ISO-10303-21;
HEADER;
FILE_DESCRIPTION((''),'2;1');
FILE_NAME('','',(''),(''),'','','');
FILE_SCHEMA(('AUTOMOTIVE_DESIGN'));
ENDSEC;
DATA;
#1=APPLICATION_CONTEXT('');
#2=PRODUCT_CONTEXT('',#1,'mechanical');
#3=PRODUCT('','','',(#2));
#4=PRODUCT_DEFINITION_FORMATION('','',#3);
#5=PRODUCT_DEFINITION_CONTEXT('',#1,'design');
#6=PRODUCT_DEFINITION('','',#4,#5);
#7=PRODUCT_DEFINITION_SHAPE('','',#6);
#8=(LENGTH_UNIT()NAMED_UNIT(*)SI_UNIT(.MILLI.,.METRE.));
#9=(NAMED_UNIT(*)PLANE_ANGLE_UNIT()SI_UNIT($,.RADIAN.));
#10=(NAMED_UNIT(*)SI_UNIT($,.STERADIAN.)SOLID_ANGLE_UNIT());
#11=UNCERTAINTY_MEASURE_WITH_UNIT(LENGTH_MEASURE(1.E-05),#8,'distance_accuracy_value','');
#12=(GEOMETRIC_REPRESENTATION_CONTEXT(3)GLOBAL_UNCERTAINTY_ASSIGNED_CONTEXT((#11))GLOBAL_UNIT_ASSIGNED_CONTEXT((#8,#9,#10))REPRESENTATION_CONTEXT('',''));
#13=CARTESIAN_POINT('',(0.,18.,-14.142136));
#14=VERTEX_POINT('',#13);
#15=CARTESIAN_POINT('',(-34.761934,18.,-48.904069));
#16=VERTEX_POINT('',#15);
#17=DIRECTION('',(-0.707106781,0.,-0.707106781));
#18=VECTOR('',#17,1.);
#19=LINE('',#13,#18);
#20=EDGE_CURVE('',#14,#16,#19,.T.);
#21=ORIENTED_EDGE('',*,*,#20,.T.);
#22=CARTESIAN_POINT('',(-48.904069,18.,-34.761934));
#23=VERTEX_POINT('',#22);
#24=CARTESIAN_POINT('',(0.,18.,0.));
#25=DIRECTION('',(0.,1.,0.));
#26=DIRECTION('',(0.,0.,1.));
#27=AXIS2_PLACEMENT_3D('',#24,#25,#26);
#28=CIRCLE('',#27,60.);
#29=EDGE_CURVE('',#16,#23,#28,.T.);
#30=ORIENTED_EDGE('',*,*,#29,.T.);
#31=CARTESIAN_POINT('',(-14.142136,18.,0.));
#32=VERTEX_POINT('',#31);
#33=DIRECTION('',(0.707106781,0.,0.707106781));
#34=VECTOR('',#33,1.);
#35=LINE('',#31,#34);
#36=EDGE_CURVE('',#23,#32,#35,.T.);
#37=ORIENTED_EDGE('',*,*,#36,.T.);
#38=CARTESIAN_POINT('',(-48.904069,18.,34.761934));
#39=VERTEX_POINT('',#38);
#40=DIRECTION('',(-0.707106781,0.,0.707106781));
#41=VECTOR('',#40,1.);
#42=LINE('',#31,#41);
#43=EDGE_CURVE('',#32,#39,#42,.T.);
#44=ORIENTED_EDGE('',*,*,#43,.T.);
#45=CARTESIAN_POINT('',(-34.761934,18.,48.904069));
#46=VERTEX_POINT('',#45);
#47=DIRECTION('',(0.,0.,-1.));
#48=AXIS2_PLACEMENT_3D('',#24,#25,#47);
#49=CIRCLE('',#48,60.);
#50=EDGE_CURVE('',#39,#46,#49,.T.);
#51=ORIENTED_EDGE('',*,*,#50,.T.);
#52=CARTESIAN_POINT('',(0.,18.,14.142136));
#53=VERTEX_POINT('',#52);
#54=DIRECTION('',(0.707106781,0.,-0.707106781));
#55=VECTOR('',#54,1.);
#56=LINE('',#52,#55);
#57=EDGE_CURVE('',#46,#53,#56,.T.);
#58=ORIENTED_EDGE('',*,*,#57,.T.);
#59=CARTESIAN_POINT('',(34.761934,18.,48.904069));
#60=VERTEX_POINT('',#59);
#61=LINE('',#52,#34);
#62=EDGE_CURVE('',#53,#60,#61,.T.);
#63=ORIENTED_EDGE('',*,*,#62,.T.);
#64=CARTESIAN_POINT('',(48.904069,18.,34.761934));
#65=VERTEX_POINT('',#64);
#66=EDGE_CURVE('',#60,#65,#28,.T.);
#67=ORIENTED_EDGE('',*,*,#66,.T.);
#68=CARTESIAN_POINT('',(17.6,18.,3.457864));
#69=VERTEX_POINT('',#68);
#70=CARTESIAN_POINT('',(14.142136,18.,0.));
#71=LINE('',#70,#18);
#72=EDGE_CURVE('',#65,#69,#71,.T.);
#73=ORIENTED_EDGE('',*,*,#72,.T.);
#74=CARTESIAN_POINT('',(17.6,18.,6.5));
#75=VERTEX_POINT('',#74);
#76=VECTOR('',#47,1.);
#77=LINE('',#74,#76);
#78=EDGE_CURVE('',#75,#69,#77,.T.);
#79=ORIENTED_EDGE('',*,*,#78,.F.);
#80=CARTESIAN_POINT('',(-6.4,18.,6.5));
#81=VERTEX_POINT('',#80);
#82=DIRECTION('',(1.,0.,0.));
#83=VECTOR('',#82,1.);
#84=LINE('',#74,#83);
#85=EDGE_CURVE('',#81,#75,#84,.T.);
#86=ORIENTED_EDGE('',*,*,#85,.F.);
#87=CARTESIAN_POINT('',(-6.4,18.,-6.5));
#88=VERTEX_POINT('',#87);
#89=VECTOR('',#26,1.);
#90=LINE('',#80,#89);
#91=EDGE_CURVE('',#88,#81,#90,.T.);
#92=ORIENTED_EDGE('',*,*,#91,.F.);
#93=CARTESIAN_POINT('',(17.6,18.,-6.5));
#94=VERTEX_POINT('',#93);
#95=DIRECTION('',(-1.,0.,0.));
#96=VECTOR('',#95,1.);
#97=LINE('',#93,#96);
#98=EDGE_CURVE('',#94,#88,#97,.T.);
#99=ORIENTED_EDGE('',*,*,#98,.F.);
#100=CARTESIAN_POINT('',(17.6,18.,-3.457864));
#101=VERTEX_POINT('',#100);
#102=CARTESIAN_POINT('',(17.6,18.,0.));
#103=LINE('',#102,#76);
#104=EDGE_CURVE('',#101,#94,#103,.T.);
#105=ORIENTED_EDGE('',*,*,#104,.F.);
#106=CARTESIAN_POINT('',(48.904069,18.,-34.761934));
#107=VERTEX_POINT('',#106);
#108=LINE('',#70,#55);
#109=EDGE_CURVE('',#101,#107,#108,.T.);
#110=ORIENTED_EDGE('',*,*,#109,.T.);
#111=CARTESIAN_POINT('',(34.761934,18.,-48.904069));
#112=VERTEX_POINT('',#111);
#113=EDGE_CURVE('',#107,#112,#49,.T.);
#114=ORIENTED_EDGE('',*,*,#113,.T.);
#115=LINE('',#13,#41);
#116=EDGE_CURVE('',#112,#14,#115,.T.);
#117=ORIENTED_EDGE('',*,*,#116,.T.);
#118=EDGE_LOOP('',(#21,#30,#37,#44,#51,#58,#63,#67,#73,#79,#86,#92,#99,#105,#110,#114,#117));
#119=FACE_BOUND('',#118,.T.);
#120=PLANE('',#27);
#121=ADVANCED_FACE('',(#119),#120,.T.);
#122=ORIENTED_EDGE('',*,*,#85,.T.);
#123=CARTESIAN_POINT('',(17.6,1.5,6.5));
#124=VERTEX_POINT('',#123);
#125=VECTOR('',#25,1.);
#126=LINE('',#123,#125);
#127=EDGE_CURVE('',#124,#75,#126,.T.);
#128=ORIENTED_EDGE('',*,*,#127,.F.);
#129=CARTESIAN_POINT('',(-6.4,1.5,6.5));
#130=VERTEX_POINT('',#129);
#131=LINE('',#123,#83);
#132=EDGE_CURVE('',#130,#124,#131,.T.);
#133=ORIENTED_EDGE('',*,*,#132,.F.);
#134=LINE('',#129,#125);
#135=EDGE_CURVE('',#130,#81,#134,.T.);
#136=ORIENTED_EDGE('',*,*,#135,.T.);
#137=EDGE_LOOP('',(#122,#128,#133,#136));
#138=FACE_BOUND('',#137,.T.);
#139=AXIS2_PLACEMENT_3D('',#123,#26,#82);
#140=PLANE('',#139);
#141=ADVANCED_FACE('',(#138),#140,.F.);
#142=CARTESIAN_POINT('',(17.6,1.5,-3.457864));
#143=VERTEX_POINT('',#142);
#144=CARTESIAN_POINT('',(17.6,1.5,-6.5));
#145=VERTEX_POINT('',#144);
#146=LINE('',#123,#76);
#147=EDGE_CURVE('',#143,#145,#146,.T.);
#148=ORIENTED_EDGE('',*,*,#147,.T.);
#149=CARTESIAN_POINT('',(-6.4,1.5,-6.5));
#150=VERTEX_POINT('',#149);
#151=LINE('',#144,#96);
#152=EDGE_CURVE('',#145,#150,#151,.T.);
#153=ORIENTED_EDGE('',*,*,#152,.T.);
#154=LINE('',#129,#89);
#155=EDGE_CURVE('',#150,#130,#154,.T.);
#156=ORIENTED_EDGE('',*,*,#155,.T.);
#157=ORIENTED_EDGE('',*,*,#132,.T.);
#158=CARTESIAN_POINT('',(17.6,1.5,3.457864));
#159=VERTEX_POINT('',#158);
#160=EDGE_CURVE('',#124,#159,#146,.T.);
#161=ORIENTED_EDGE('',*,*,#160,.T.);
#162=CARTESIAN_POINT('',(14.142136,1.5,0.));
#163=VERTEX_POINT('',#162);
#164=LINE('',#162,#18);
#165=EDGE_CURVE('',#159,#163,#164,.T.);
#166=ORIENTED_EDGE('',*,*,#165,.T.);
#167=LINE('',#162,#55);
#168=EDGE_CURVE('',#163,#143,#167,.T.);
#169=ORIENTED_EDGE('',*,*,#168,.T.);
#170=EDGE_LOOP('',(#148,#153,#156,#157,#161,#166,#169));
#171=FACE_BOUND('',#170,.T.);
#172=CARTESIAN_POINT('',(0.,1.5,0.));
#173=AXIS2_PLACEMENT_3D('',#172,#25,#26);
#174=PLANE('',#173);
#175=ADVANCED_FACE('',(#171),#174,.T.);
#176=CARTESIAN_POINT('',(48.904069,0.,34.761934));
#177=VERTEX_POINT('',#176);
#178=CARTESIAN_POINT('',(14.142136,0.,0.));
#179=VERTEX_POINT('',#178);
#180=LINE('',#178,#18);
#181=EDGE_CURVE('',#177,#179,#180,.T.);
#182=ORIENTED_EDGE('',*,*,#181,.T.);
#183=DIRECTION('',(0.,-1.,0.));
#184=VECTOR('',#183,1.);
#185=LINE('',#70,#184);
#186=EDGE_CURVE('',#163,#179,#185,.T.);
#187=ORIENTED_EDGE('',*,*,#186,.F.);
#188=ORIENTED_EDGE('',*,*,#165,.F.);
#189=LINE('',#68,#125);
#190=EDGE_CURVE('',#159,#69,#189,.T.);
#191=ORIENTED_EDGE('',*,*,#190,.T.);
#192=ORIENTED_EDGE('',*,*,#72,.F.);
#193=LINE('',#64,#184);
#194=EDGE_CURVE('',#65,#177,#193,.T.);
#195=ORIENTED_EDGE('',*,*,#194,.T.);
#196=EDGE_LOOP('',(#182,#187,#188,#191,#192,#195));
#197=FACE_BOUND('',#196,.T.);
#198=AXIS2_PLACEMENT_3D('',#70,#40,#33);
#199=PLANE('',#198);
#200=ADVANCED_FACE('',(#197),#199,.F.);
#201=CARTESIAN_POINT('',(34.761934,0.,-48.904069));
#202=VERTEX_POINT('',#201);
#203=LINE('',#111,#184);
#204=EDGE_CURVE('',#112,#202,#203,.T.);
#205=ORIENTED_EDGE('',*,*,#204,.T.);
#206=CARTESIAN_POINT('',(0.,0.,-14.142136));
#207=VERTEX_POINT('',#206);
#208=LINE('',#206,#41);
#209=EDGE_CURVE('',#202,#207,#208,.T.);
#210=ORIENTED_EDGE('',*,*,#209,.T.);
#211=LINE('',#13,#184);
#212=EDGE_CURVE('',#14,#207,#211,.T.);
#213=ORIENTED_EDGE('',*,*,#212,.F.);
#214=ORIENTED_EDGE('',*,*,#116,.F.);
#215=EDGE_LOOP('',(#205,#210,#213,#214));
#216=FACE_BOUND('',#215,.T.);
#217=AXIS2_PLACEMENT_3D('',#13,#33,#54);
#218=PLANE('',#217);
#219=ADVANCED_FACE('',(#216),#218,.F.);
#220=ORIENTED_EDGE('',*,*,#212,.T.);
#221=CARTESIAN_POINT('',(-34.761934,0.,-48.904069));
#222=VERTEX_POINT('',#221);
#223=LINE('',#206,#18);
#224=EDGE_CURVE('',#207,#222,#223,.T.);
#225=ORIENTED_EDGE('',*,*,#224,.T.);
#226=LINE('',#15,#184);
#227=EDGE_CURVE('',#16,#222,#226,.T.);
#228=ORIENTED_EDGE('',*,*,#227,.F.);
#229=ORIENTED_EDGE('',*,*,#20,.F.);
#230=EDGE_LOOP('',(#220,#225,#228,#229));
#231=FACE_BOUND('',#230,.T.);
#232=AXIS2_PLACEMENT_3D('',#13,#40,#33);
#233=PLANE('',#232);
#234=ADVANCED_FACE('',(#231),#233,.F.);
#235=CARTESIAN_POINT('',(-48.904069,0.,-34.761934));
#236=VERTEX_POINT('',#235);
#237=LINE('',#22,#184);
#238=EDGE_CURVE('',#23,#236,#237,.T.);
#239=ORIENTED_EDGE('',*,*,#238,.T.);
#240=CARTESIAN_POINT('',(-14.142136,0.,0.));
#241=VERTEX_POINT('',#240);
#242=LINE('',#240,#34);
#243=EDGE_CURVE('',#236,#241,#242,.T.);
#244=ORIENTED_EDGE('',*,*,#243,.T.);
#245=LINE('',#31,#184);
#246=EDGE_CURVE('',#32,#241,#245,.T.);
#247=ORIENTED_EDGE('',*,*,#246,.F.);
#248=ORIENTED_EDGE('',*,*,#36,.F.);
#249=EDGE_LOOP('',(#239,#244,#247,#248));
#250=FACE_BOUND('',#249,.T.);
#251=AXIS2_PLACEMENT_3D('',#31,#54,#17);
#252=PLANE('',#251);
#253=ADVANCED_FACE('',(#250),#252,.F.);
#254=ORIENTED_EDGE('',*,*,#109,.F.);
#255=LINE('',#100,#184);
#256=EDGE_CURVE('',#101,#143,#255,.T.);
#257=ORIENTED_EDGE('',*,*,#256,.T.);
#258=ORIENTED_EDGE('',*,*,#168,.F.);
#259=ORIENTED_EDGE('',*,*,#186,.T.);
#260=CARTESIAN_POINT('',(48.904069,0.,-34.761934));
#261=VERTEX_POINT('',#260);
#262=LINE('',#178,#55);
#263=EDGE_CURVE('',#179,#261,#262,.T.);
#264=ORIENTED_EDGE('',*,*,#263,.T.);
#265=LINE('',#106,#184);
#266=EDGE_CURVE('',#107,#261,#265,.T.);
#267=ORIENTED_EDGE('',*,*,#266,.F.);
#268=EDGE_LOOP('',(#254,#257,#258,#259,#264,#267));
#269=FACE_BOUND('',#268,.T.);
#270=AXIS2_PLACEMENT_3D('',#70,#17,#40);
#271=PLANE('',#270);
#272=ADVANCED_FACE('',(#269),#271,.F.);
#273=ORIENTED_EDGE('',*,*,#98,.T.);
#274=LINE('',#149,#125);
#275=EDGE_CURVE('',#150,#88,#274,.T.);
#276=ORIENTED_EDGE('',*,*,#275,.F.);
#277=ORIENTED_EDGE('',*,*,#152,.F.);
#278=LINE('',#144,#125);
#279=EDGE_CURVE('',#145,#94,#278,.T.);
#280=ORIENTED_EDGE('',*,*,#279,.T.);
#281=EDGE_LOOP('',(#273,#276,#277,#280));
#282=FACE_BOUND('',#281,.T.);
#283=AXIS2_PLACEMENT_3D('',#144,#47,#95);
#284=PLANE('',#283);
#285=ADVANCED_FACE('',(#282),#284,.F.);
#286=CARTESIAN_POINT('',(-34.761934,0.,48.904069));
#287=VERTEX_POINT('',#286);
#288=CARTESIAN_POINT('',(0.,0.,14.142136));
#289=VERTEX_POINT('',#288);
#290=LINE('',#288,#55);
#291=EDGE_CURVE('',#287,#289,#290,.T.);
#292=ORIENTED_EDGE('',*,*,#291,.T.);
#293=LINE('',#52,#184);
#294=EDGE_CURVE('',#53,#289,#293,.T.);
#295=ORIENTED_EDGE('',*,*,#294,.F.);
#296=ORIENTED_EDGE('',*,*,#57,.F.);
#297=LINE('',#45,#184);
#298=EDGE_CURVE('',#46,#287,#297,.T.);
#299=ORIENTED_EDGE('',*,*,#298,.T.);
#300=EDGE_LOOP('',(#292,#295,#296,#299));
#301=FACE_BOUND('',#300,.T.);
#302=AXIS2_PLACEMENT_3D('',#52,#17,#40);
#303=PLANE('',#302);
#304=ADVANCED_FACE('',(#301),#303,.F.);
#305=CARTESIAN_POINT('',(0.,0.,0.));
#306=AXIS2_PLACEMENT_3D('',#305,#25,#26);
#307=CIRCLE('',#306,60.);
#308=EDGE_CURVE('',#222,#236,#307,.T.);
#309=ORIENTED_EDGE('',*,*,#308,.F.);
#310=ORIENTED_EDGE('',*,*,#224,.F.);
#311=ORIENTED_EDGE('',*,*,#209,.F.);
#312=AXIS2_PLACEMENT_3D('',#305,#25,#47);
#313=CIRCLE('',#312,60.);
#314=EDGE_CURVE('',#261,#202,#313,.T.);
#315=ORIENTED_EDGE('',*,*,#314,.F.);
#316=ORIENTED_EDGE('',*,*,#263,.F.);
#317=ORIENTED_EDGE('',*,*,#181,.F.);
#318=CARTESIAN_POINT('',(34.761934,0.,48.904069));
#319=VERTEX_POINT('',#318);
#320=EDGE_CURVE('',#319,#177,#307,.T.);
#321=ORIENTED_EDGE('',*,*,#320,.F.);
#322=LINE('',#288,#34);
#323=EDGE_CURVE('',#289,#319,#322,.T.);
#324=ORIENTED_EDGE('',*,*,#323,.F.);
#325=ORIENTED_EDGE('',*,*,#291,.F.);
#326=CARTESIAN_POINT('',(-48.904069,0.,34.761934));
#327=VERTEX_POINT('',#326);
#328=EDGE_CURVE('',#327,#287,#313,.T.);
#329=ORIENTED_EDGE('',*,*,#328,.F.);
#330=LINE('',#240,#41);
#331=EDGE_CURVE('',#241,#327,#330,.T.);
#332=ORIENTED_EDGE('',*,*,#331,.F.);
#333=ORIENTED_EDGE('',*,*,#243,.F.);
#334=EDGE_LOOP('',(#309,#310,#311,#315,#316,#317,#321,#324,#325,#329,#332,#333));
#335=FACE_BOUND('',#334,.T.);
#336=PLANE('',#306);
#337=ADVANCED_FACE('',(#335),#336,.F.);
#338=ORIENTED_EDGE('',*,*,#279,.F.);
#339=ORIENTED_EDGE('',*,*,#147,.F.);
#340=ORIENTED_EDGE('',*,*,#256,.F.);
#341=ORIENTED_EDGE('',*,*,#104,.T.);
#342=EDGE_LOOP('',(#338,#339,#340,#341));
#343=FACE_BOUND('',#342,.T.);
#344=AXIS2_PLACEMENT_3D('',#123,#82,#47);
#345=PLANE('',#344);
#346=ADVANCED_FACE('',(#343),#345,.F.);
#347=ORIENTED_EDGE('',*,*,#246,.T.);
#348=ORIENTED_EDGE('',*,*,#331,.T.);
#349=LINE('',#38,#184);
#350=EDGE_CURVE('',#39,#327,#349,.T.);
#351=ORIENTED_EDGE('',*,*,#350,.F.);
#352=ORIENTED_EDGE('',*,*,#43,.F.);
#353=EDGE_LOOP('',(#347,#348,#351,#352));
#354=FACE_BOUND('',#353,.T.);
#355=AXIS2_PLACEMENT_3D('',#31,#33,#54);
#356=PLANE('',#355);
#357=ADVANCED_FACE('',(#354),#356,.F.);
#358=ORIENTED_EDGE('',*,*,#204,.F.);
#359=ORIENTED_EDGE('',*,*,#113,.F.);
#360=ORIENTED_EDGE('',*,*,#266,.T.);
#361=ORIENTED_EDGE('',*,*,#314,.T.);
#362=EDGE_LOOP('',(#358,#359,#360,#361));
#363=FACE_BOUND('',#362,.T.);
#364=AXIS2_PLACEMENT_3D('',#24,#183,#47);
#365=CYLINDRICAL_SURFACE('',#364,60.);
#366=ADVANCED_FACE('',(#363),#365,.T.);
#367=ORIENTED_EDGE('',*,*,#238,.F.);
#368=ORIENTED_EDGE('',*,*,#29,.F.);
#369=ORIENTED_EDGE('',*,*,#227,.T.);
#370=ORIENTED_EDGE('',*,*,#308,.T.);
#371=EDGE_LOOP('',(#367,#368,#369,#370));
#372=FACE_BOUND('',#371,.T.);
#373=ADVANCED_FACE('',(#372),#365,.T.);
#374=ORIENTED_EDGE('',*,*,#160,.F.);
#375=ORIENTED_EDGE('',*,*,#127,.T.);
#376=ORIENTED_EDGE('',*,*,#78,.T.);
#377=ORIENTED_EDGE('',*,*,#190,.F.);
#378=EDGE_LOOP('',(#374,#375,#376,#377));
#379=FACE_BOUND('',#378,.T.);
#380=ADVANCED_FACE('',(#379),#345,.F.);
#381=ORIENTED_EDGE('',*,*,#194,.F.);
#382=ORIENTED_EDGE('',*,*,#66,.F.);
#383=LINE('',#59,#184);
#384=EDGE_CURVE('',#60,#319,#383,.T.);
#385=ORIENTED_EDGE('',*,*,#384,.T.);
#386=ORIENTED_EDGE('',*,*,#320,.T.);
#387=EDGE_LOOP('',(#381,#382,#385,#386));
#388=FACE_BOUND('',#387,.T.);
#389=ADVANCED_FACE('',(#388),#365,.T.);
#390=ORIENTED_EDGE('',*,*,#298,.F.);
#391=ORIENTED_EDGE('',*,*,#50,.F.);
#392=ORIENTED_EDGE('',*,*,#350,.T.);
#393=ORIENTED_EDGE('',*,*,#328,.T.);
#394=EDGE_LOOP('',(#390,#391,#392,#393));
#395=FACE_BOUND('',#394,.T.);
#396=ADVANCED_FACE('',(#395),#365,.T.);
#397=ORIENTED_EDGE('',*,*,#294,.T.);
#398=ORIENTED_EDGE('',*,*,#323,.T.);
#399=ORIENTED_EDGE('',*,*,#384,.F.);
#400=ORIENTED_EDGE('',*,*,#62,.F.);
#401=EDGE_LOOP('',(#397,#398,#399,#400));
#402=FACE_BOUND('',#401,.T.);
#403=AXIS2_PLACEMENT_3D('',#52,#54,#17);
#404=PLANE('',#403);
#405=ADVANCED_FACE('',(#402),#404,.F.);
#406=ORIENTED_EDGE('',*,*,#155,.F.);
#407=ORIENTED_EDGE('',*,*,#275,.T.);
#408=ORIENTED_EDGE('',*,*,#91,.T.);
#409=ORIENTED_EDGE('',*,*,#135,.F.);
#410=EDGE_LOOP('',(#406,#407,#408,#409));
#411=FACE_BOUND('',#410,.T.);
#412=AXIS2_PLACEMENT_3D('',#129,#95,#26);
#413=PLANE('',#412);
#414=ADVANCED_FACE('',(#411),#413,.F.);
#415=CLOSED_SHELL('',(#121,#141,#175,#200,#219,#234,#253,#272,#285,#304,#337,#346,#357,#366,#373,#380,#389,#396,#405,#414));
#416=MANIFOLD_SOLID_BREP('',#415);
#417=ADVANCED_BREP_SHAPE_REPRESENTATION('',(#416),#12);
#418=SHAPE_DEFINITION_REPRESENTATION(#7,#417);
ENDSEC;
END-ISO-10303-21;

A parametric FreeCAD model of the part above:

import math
import FreeCAD as App
import Part
import Sketcher

V = App.Vector
Q = App.Units.Quantity

doc = App.newDocument("Part")
params = doc.addObject("Spreadsheet::Sheet", "Params")
for row, (alias, value) in enumerate([
    ("sketch1_radius", "60 mm"),
    ("pad1_length", "18 mm"),
    ("sketch2_width", "24 mm"),
    ("sketch2_height", "13 mm"),
    ("pocket1_length", "16.5 mm"),
], start=1):
    params.set(f"A{row}", alias)
    params.set(f"B{row}", "=" + value)
    params.setAlias(f"B{row}", alias)

body = doc.addObject("PartDesign::Body", "Body")

# Sketch on XZ plane
sketch1 = body.newObject("Sketcher::SketchObject", "Sketch")
sketch1.AttachmentSupport = (doc.getObject("XZ_Plane"), [""])
sketch1.MapMode = "FlatFace"
sketch1.addGeometry([
    Part.LineSegment(V(14, 0, 0), V(49, -35, 0)),  # 0
    Part.ArcOfCircle(Part.Circle(V(0, 0, 0), V(0, 0, 1), 60), math.radians(-54.59), math.radians(-35.41)),  # 1
    Part.LineSegment(V(35, -49, 0), V(0, -14, 0)),  # 2
    Part.LineSegment(V(0, -14, 0), V(-35, -49, 0)),  # 3
    Part.ArcOfCircle(Part.Circle(V(0, 0, 0), V(0, 0, 1), 60), math.radians(-144.59), math.radians(-125.41)),  # 4
    Part.LineSegment(V(-49, -35, 0), V(-14, 0, 0)),  # 5
    Part.LineSegment(V(-14, 0, 0), V(-49, 35, 0)),  # 6
    Part.ArcOfCircle(Part.Circle(V(0, 0, 0), V(0, 0, 1), 60), math.radians(125.41), math.radians(144.59)),  # 7
    Part.LineSegment(V(-35, 49, 0), V(0, 14, 0)),  # 8
    Part.LineSegment(V(0, 14, 0), V(35, 49, 0)),  # 9
    Part.ArcOfCircle(Part.Circle(V(0, 0, 0), V(0, 0, 1), 60), math.radians(35.41), math.radians(54.59)),  # 10
    Part.LineSegment(V(49, 35, 0), V(14, 0, 0)),  # 11
], False)
sketch1.addConstraint([
    Sketcher.Constraint("Coincident", 0, 2, 1, 2),
    Sketcher.Constraint("Coincident", 1, 1, 2, 1),
    Sketcher.Constraint("Coincident", 2, 2, 3, 1),
    Sketcher.Constraint("Coincident", 3, 2, 4, 2),
    Sketcher.Constraint("Coincident", 4, 1, 5, 1),
    Sketcher.Constraint("Coincident", 5, 2, 6, 1),
    Sketcher.Constraint("Coincident", 6, 2, 7, 2),
    Sketcher.Constraint("Coincident", 7, 1, 8, 1),
    Sketcher.Constraint("Coincident", 8, 2, 9, 1),
    Sketcher.Constraint("Coincident", 9, 2, 10, 2),
    Sketcher.Constraint("Coincident", 10, 1, 11, 1),
    Sketcher.Constraint("Coincident", 11, 2, 0, 1),
    Sketcher.Constraint("Coincident", 1, 3, -1, 1),
    Sketcher.Constraint("Coincident", 4, 3, -1, 1),
    Sketcher.Constraint("Coincident", 7, 3, -1, 1),
    Sketcher.Constraint("Coincident", 10, 3, -1, 1),
    Sketcher.Constraint("Equal", 1, 4),
    Sketcher.Constraint("Equal", 4, 7),
    Sketcher.Constraint("Equal", 7, 10),
    Sketcher.Constraint("Symmetric", 2, 2, 8, 2, -1, 1),
    Sketcher.Constraint("Symmetric", 5, 2, 11, 2, -1, 1),
    Sketcher.Constraint("PointOnObject", 2, 2, -2),
    Sketcher.Constraint("PointOnObject", 5, 2, -1),
    Sketcher.Constraint("Parallel", 0, 2),
    Sketcher.Constraint("Perpendicular", 2, 3),
    Sketcher.Constraint("Parallel", 3, 5),
    Sketcher.Constraint("Perpendicular", 5, 6),
    Sketcher.Constraint("Parallel", 6, 8),
    Sketcher.Constraint("Perpendicular", 8, 9),
    Sketcher.Constraint("Parallel", 9, 11),
    Sketcher.Constraint("Horizontal", 1, 1, 3, 2),
    Sketcher.Constraint("Equal", 0, 2),
    Sketcher.Constraint("Radius", 1, Q("60 mm")),
    Sketcher.Constraint("DistanceX", -1, 1, 0, 2, Q("48.904069 mm")),
])
sketch1.setExpression("Constraints[32]", "Params.sketch1_radius")
pad1 = body.newObject("PartDesign::Pad", "Pad")
pad1.Profile = sketch1
pad1.setExpression("Length", "Params.pad1_length")
pad1.Reversed = True

# Sketch on XZ plane
sketch2 = body.newObject("Sketcher::SketchObject", "Sketch001")
sketch2.AttachmentSupport = (doc.getObject("XZ_Plane"), [""])
sketch2.MapMode = "FlatFace"
sketch2.AttachmentOffset = App.Placement(V(0, 0, -18), App.Rotation())
sketch2.addGeometry([
    Part.LineSegment(V(-6, -6, 0), V(-6, 6, 0)),
    Part.LineSegment(V(-6, 6, 0), V(18, 6, 0)),
    Part.LineSegment(V(18, 6, 0), V(18, -6, 0)),
    Part.LineSegment(V(18, -6, 0), V(-6, -6, 0)),
], False)
sketch2.addConstraint([
    Sketcher.Constraint("Coincident", 0, 2, 1, 1),
    Sketcher.Constraint("Coincident", 1, 2, 2, 1),
    Sketcher.Constraint("Coincident", 2, 2, 3, 1),
    Sketcher.Constraint("Coincident", 3, 2, 0, 1),
    Sketcher.Constraint("Vertical", 0),
    Sketcher.Constraint("Horizontal", 1),
    Sketcher.Constraint("Vertical", 2),
    Sketcher.Constraint("Horizontal", 3),
    Sketcher.Constraint("DistanceX", 1, 1, 1, 2, Q("24 mm")),
    Sketcher.Constraint("DistanceY", 0, 1, 0, 2, Q("13 mm")),
    Sketcher.Constraint("DistanceX", 0, 2, -1, 1, Q("6.4 mm")),
    Sketcher.Constraint("DistanceY", -1, 1, 0, 2, Q("6.5 mm")),
])
sketch2.setExpression("Constraints[8]", "Params.sketch2_width")
sketch2.setExpression("Constraints[9]", "Params.sketch2_height")
pocket1 = body.newObject("PartDesign::Pocket", "Pocket")
pocket1.Profile = sketch2
pocket1.setExpression("Length", "Params.pocket1_length")
pocket1.Reversed = True

doc.recompute()
